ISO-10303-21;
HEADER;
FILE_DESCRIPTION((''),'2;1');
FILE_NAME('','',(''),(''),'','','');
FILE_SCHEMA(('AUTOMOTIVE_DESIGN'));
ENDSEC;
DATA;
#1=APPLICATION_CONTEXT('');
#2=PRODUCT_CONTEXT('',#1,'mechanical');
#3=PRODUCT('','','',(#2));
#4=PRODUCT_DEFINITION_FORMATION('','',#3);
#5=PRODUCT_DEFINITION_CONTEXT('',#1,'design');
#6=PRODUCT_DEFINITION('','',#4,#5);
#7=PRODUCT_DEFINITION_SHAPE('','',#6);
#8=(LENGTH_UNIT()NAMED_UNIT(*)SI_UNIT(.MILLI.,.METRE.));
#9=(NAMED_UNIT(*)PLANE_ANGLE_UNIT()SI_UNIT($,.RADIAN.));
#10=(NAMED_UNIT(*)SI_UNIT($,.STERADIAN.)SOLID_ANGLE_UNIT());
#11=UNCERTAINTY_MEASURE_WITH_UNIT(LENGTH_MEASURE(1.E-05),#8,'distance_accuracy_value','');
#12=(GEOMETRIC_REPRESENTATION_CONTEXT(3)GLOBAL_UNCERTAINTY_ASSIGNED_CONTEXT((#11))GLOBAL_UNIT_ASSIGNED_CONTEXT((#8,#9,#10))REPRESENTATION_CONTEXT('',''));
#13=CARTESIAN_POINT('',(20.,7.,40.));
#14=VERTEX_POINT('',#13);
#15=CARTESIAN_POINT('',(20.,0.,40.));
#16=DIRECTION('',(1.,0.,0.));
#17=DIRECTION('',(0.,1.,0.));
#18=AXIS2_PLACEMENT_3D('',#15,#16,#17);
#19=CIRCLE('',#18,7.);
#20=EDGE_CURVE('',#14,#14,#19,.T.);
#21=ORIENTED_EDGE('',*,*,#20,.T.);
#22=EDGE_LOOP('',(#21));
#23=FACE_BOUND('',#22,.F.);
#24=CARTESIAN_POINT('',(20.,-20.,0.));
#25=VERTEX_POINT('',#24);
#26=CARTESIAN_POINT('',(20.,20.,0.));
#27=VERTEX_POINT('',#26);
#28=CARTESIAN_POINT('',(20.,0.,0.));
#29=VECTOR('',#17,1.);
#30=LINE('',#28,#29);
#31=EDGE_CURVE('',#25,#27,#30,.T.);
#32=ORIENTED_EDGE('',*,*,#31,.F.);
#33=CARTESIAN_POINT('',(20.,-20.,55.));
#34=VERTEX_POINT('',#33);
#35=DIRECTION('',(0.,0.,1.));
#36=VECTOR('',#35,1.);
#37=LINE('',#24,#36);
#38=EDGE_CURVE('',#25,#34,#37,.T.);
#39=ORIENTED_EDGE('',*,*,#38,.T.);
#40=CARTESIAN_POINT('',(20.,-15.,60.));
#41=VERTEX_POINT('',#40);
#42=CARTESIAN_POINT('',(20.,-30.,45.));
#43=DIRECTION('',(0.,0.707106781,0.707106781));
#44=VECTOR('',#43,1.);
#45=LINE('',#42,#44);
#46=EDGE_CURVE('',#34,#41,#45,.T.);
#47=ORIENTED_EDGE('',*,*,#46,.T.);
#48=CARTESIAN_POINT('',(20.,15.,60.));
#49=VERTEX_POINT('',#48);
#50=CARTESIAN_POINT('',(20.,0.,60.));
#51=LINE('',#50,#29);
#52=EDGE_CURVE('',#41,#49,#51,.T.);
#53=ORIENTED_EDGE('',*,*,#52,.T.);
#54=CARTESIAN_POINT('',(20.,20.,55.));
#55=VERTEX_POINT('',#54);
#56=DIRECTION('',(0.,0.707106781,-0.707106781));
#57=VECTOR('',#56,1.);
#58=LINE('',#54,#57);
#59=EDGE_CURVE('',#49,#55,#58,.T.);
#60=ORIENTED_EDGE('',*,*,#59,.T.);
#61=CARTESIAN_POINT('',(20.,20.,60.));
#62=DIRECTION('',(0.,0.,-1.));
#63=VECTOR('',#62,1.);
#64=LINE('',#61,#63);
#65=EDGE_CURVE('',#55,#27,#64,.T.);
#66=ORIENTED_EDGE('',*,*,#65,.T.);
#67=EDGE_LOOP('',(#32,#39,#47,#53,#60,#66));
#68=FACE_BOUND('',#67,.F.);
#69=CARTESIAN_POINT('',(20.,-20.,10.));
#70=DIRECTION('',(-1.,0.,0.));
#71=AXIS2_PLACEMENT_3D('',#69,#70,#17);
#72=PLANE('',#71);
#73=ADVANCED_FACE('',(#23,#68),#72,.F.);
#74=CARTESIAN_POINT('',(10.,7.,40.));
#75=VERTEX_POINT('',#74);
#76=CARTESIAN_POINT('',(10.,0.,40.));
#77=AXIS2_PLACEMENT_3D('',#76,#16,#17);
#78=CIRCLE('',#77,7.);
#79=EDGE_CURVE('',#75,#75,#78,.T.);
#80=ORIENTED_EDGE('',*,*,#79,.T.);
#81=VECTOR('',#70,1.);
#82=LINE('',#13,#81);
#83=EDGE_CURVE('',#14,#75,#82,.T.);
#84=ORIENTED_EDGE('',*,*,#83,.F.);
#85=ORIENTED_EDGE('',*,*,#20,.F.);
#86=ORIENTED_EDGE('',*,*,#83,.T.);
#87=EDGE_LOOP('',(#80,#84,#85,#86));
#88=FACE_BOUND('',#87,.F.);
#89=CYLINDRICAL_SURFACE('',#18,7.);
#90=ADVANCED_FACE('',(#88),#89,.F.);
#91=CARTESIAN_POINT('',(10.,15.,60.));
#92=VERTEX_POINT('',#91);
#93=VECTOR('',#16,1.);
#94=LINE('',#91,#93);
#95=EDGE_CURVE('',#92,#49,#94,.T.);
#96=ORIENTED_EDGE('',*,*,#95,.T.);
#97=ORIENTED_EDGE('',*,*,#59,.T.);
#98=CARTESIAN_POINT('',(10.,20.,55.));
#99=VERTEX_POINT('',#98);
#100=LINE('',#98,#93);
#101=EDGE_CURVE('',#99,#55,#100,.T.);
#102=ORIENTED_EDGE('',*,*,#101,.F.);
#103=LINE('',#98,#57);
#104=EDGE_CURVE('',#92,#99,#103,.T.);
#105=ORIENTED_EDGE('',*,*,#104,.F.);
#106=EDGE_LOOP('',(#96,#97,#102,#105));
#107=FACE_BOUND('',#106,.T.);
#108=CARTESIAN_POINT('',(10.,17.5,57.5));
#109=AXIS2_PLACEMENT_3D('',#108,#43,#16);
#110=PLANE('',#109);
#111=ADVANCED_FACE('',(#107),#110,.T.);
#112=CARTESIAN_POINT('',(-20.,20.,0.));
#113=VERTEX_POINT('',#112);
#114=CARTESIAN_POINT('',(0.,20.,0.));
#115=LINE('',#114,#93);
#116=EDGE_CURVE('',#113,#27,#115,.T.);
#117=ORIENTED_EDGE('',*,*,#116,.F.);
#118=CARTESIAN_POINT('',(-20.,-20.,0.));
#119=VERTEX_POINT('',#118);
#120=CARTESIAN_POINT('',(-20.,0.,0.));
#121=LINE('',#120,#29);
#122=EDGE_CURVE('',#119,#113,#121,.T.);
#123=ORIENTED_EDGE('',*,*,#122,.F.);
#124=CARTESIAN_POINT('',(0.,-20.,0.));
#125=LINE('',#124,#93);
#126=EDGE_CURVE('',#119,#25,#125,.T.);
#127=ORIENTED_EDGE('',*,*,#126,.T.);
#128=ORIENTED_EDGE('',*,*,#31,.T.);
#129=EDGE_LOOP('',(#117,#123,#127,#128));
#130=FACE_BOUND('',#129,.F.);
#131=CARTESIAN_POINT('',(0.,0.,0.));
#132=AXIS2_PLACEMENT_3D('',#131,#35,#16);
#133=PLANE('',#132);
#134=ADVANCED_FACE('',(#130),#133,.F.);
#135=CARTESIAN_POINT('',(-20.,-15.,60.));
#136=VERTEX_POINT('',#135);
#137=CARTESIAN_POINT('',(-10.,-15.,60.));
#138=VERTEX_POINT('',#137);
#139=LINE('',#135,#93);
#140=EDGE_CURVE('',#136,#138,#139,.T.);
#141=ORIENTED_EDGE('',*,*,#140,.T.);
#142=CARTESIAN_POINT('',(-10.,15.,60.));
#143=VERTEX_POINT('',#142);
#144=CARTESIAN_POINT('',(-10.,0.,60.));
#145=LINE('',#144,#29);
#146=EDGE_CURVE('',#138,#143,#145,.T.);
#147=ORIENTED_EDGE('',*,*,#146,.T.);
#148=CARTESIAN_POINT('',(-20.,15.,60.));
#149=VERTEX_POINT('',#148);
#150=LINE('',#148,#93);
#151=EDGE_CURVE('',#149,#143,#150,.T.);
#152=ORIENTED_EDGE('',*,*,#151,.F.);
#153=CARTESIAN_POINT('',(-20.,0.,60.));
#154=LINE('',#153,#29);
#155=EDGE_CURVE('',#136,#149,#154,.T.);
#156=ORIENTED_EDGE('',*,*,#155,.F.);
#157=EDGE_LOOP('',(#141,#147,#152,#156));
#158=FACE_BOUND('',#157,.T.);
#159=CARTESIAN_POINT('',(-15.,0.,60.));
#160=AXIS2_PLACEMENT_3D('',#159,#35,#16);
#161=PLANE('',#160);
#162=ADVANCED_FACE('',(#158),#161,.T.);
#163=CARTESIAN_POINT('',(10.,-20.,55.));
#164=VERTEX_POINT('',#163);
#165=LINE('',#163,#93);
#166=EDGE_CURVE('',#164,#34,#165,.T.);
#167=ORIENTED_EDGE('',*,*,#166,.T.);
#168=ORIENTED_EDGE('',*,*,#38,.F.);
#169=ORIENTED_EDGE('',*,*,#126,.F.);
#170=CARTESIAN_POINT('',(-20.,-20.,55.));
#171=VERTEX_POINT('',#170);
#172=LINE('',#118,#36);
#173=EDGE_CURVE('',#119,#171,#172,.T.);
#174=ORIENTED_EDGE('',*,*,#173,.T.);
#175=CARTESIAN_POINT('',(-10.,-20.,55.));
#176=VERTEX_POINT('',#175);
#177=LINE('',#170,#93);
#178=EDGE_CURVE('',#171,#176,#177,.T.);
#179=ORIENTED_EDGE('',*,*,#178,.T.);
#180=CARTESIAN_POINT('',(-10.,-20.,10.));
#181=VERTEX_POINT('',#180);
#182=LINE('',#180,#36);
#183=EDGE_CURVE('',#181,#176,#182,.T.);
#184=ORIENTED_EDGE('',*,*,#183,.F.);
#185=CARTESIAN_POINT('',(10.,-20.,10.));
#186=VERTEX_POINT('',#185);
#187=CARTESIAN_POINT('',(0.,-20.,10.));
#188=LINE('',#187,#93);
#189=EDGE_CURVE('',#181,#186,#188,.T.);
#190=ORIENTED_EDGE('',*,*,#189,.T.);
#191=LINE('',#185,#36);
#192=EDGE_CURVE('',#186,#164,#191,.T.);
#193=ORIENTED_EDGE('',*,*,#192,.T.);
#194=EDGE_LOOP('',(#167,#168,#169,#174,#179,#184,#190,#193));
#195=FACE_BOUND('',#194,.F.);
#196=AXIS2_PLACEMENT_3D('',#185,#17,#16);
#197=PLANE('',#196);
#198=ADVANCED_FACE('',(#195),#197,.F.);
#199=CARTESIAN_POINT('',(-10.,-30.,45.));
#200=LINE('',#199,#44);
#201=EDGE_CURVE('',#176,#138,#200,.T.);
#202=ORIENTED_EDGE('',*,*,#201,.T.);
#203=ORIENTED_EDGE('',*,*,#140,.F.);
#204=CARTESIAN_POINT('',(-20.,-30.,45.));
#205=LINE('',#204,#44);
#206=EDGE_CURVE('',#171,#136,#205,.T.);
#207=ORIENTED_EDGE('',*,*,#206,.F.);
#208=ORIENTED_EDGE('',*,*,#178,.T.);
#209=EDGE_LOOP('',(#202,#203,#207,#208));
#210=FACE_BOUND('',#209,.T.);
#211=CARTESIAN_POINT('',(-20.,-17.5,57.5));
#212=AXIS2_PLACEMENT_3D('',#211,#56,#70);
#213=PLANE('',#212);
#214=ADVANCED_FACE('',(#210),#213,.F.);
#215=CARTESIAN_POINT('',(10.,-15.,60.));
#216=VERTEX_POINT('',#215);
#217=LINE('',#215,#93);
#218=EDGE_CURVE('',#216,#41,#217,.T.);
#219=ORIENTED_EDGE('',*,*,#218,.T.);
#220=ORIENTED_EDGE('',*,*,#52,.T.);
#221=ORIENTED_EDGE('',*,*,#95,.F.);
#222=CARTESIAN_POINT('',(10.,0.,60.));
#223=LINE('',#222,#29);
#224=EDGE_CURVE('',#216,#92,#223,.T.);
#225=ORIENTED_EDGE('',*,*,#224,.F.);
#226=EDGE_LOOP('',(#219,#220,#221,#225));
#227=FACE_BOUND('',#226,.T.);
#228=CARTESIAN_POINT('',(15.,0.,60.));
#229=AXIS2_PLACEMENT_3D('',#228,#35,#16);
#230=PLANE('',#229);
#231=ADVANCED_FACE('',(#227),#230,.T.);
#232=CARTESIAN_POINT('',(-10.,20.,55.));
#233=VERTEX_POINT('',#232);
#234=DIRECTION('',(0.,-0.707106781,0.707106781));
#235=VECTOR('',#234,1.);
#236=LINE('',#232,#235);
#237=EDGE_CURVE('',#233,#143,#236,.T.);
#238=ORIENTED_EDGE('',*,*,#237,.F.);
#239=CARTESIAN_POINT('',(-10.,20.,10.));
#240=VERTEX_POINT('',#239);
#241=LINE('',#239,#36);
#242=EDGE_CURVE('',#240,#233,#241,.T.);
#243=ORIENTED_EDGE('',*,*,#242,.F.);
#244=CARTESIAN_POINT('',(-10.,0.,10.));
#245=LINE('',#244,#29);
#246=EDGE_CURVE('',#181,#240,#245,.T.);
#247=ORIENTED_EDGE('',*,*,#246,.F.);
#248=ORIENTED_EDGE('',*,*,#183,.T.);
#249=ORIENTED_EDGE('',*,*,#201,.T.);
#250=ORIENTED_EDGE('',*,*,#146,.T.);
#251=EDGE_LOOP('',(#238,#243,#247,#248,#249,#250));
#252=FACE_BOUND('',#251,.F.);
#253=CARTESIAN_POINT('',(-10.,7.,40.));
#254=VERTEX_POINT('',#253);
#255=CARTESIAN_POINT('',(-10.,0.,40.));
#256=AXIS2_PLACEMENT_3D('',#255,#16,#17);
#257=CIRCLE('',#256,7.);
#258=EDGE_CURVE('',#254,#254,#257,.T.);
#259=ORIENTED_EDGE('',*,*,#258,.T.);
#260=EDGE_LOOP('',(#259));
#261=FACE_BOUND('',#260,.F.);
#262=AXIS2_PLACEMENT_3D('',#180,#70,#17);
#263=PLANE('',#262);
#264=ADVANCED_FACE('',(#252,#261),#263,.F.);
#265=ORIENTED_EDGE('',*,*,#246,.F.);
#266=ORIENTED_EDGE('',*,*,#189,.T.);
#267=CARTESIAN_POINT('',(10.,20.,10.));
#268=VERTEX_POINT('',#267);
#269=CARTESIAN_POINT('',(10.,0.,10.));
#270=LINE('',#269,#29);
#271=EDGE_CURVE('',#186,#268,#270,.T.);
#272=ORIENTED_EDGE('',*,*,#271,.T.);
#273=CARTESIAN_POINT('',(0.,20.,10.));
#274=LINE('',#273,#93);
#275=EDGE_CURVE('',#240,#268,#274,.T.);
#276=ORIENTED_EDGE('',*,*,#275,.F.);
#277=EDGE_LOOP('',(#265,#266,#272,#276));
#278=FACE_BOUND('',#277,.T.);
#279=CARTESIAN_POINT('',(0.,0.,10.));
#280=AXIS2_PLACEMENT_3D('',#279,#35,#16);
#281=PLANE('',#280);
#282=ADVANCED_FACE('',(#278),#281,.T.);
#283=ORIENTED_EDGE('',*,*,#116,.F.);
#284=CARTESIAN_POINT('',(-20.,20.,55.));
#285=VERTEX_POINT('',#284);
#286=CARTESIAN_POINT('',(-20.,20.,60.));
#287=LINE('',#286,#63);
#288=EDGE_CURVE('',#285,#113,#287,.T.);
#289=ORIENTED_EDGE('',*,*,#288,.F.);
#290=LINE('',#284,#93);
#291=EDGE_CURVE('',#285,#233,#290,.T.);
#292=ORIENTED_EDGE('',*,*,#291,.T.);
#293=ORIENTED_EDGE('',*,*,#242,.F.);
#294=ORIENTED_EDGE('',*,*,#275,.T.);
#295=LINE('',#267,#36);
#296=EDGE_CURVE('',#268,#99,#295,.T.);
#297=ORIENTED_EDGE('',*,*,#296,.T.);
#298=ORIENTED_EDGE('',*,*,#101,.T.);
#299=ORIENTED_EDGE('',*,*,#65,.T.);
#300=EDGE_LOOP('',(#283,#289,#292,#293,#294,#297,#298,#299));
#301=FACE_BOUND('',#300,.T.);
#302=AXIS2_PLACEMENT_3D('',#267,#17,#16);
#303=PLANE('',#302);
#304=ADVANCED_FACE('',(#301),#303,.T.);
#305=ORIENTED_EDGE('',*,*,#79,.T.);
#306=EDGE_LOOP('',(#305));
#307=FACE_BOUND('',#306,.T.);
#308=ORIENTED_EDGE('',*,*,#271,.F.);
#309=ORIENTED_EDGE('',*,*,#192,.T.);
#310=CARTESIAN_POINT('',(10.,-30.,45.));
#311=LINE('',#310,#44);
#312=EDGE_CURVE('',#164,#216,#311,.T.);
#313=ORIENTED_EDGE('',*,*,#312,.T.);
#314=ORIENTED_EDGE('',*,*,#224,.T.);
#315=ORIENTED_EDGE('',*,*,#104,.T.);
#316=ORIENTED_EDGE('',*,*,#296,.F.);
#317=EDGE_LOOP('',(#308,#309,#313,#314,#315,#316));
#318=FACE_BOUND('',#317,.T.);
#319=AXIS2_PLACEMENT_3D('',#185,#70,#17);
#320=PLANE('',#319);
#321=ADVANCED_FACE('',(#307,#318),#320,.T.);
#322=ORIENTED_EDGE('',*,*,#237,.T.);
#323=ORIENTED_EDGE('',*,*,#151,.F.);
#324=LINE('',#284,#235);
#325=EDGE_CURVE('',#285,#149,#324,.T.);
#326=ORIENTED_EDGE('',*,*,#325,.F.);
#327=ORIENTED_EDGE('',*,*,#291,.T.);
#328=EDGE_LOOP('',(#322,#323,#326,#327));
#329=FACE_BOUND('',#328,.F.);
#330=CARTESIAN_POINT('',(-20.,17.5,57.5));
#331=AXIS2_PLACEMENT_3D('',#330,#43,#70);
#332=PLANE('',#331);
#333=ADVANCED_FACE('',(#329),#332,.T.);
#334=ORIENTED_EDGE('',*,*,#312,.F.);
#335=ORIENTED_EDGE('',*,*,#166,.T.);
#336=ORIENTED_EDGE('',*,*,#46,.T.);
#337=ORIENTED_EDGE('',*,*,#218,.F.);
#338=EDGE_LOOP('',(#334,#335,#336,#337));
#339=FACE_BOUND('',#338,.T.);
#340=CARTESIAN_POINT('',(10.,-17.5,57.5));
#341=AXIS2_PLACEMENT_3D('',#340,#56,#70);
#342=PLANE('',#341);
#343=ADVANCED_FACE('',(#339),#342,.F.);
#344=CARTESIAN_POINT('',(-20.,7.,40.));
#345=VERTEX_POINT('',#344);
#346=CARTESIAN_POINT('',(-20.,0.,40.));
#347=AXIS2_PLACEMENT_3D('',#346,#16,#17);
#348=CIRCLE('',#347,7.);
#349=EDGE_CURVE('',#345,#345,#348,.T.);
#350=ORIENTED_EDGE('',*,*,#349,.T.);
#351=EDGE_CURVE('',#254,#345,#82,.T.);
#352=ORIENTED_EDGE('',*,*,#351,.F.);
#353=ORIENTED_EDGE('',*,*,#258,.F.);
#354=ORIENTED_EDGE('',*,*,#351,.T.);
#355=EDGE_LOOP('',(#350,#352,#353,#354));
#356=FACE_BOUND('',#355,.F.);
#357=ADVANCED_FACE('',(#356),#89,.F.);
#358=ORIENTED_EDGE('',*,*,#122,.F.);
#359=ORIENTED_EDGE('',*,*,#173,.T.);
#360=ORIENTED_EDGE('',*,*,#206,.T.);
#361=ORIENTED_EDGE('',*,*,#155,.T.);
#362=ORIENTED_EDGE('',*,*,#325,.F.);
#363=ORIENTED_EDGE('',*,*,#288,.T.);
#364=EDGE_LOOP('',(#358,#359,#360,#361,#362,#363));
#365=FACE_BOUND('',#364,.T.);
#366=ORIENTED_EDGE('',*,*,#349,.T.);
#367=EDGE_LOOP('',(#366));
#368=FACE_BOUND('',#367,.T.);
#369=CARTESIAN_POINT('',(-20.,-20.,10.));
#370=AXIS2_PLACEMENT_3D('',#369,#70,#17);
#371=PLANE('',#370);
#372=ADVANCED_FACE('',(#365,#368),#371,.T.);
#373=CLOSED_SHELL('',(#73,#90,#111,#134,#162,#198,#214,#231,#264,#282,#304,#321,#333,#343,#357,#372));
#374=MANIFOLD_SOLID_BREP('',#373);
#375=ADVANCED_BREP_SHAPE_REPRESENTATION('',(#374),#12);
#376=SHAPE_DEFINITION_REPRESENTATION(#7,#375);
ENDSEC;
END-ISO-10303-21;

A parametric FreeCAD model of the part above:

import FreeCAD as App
import Part
import Sketcher

V = App.Vector


def edges_at(feature, points):
    """Names of the edges that pass closest to the given points."""
    edges = feature.Shape.Edges
    near = lambda p: min(range(len(edges)), key=lambda i: edges[i].distToShape(Part.Vertex(*p))[0])
    return sorted({f"Edge{near(p) + 1}" for p in points})


def add_polygon(sketch, points):
    """Adds a closed chain of lines whose ends are joined by coincident constraints."""
    first, n = sketch.GeometryCount, len(points)
    for a, b in zip(points, points[1:] + points[:1]):
        sketch.addGeometry(Part.LineSegment(App.Vector(*a, 0), App.Vector(*b, 0)), False)
    for i in range(n):
        sketch.addConstraint(Sketcher.Constraint("Coincident", first + i, 2, first + (i + 1) % n, 1))

doc = App.newDocument("Part")
params = doc.addObject("Spreadsheet::Sheet", "Params")
for row, (alias, value) in enumerate([
    ("sketch1_width", "40 mm"),
    ("pad1_length", "10 mm"),
    ("sketch2_width", "10 mm"),
    ("sketch2_height", "40 mm"),
    ("pad2_length", "50 mm"),
    ("sketch3_width", "10 mm"),
    ("sketch3_height", "40 mm"),
    ("pad3_length", "50 mm"),
    ("sketch4_diameter", "14 mm"),
    ("pocket1_length", "96.2 mm"),
    ("chamfer_size", "5 mm"),
], start=1):
    params.set(f"A{row}", alias)
    params.set(f"B{row}", "=" + value)
    params.setAlias(f"B{row}", alias)

body = doc.addObject("PartDesign::Body", "Body")

# Sketch on XY plane
sketch1 = body.newObject("Sketcher::SketchObject", "Sketch")
sketch1.AttachmentSupport = (doc.getObject("XY_Plane"), [""])
sketch1.MapMode = "FlatFace"
add_polygon(sketch1, [(-20, 20), (-20, -20), (20, -20), (20, 20)])  # lines 0-3
sketch1.addConstraint([
    Sketcher.Constraint("Vertical", 0),
    Sketcher.Constraint("Horizontal", 1),
    Sketcher.Constraint("Vertical", 2),
    Sketcher.Constraint("Horizontal", 3),
    Sketcher.Constraint("Symmetric", 0, 2, 2, 2, -1, 1),
    Sketcher.Constraint("Equal", 3, 0),
    Sketcher.Constraint("DistanceX", 1, 1, 1, 2, 40.0),
])
sketch1.setExpression("Constraints[10]", "Params.sketch1_width")
pad1 = body.newObject("PartDesign::Pad", "Pad")
pad1.Profile = sketch1
pad1.setExpression("Length", "Params.pad1_length")

# Sketch on XY plane
sketch2 = body.newObject("Sketcher::SketchObject", "Sketch001")
sketch2.AttachmentSupport = (doc.getObject("XY_Plane"), [""])
sketch2.MapMode = "FlatFace"
sketch2.AttachmentOffset = App.Placement(V(0, 0, 10), App.Rotation())
add_polygon(sketch2, [(-20, 20), (-20, -20), (-10, -20), (-10, 20)])  # lines 0-3
sketch2.addConstraint([
    Sketcher.Constraint("Vertical", 0),
    Sketcher.Constraint("Horizontal", 1),
    Sketcher.Constraint("Vertical", 2),
    Sketcher.Constraint("Horizontal", 3),
    Sketcher.Constraint("DistanceX", 1, 1, 1, 2, 10.0),
    Sketcher.Constraint("DistanceY", 0, 2, 0, 1, 40.0),
    Sketcher.Constraint("DistanceX", 0, 2, -1, 1, 20.0),
    Sketcher.Constraint("DistanceY", 0, 2, -1, 1, 20.0),
])
sketch2.setExpression("Constraints[8]", "Params.sketch2_width")
sketch2.setExpression("Constraints[9]", "Params.sketch2_height")
pad2 = body.newObject("PartDesign::Pad", "Pad001")
pad2.Profile = sketch2
pad2.setExpression("Length", "Params.pad2_length")

# Sketch on XY plane
sketch3 = body.newObject("Sketcher::SketchObject", "Sketch002")
sketch3.AttachmentSupport = (doc.getObject("XY_Plane"), [""])
sketch3.MapMode = "FlatFace"
sketch3.AttachmentOffset = App.Placement(V(0, 0, 10), App.Rotation())
add_polygon(sketch3, [(10, 20), (10, -20), (20, -20), (20, 20)])  # lines 0-3
sketch3.addConstraint([
    Sketcher.Constraint("Vertical", 0),
    Sketcher.Constraint("Horizontal", 1),
    Sketcher.Constraint("Vertical", 2),
    Sketcher.Constraint("Horizontal", 3),
    Sketcher.Constraint("DistanceX", 1, 1, 1, 2, 10.0),
    Sketcher.Constraint("DistanceY", 0, 2, 0, 1, 40.0),
    Sketcher.Constraint("DistanceX", -1, 1, 0, 2, 10.0),
    Sketcher.Constraint("DistanceY", 0, 2, -1, 1, 20.0),
])
sketch3.setExpression("Constraints[8]", "Params.sketch3_width")
sketch3.setExpression("Constraints[9]", "Params.sketch3_height")
pad3 = body.newObject("PartDesign::Pad", "Pad002")
pad3.Profile = sketch3
pad3.setExpression("Length", "Params.pad3_length")

# Sketch on YZ plane
sketch4 = body.newObject("Sketcher::SketchObject", "Sketch003")
sketch4.AttachmentSupport = (doc.getObject("YZ_Plane"), [""])
sketch4.MapMode = "FlatFace"
sketch4.AttachmentOffset = App.Placement(V(0, 0, 20), App.Rotation())
sketch4.addGeometry(Part.Circle(V(0, 40, 0), V(0, 0, 1), 7), False)
sketch4.addConstraint([
    Sketcher.Constraint("PointOnObject", 0, 3, -2),
    Sketcher.Constraint("Diameter", 0, 14.0),
    Sketcher.Constraint("DistanceY", -1, 1, 0, 3, 40.0),
])
sketch4.setExpression("Constraints[1]", "Params.sketch4_diameter")
pocket1 = body.newObject("PartDesign::Pocket", "Pocket")
pocket1.Profile = sketch4
pocket1.setExpression("Length", "Params.pocket1_length")
doc.recompute()

chamfer = body.newObject("PartDesign::Chamfer", "Chamfer")
chamfer.Base = (pocket1, edges_at(pocket1, [
    (-15, -20, 60),
    (15, -20, 60),
    (15, 20, 60),
    (-15, 20, 60),
]))
chamfer.setExpression("Size", "Params.chamfer_size")

doc.recompute()
